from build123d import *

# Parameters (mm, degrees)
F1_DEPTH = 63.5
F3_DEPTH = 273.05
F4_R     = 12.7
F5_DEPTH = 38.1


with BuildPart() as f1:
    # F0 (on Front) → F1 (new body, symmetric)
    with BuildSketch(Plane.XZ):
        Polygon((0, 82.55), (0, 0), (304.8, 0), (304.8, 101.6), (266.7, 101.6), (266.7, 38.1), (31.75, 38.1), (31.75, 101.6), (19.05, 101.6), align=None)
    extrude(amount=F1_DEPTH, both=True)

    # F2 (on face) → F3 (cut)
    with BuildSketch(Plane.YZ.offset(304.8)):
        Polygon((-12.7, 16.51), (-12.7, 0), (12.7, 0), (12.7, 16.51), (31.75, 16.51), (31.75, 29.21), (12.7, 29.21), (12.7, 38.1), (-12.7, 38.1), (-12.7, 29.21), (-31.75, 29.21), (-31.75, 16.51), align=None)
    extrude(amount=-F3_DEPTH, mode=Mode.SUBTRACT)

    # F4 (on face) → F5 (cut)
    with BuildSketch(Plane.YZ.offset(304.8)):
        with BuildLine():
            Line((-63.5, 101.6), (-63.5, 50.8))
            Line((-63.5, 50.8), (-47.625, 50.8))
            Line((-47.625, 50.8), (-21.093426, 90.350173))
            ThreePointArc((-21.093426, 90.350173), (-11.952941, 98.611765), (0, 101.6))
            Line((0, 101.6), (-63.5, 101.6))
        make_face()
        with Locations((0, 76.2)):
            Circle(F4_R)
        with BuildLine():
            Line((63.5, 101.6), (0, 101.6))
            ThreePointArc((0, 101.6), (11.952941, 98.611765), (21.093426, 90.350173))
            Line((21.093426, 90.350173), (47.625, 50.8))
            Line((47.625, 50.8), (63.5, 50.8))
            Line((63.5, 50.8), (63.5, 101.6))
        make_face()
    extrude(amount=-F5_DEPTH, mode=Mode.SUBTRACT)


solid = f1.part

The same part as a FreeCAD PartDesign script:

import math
import FreeCAD as App
import Part
import Sketcher
from FreeCAD import Vector
Q = App.Units.Quantity

doc = App.newDocument("Part")
body = doc.addObject("PartDesign::Body", "Body")

sketch1 = doc.addObject("Sketcher::SketchObject", "Sketch")
body.addObject(sketch1)
sketch1.AttachmentSupport = (doc.XZ_Plane, [""])
sketch1.MapMode = "FlatFace"
sketch1.addGeometry([
    Part.LineSegment(Vector(0, 82.55, 0), Vector(0, 0, 0)),
    Part.LineSegment(Vector(0, 0, 0), Vector(304.8, 0, 0)),
    Part.LineSegment(Vector(304.8, 0, 0), Vector(304.8, 101.6, 0)),
    Part.LineSegment(Vector(304.8, 101.6, 0), Vector(266.7, 101.6, 0)),
    Part.LineSegment(Vector(266.7, 101.6, 0), Vector(266.7, 38.1, 0)),
    Part.LineSegment(Vector(266.7, 38.1, 0), Vector(31.75, 38.1, 0)),
    Part.LineSegment(Vector(31.75, 38.1, 0), Vector(31.75, 101.6, 0)),
    Part.LineSegment(Vector(31.75, 101.6, 0), Vector(19.05, 101.6, 0)),
    Part.LineSegment(Vector(19.05, 101.6, 0), Vector(0, 82.55, 0)),
], False)
sketch1.addConstraint([
    Sketcher.Constraint("Coincident", 0, 2, 1, 1),
    Sketcher.Constraint("Coincident", 1, 2, 2, 1),
    Sketcher.Constraint("Coincident", 2, 2, 3, 1),
    Sketcher.Constraint("Coincident", 3, 2, 4, 1),
    Sketcher.Constraint("Coincident", 4, 2, 5, 1),
    Sketcher.Constraint("Coincident", 5, 2, 6, 1),
    Sketcher.Constraint("Coincident", 6, 2, 7, 1),
    Sketcher.Constraint("Coincident", 7, 2, 8, 1),
    Sketcher.Constraint("Coincident", 8, 2, 0, 1),
    Sketcher.Constraint("Vertical", 0),
    Sketcher.Constraint("Horizontal", 1),
    Sketcher.Constraint("Vertical", 2),
    Sketcher.Constraint("Horizontal", 3),
    Sketcher.Constraint("Vertical", 4),
    Sketcher.Constraint("Horizontal", 5),
    Sketcher.Constraint("Vertical", 6),
    Sketcher.Constraint("Horizontal", 7),
    Sketcher.Constraint("Coincident", 0, 2, -1, 1),
    Sketcher.Constraint("Horizontal", 3, 2, 6, 2),
    Sketcher.Constraint("DistanceX", 1, 1, 1, 2, Q("12 in")),
    Sketcher.Constraint("DistanceY", 2, 1, 2, 2, Q("4 in")),
    Sketcher.Constraint("DistanceX", 3, 2, 3, 1, Q("1.5 in")),
    Sketcher.Constraint("DistanceX", 7, 2, 7, 1, Q("0.5 in")),
    Sketcher.Constraint("DistanceY", 4, 2, 4, 1, Q("2.5 in")),
    Sketcher.Constraint("Angle", 8, Q("-135 deg")),
    Sketcher.Constraint("DistanceX", 5, 2, 5, 1, Q("9.25 in")),
])
pad1 = doc.addObject("PartDesign::Pad", "Pad")
body.addObject(pad1)
pad1.Profile = sketch1
pad1.Length = Q("5 in")
pad1.Midplane = True

sketch2 = doc.addObject("Sketcher::SketchObject", "Sketch001")
body.addObject(sketch2)
sketch2.AttachmentSupport = (doc.YZ_Plane, [""])
sketch2.MapMode = "FlatFace"
sketch2.AttachmentOffset = App.Placement(Vector(0, 0, 12 * 25.4), App.Rotation())
sketch2.addGeometry([
    Part.LineSegment(Vector(-12.7, 16.51, 0), Vector(-12.7, 0, 0)),
    Part.LineSegment(Vector(-12.7, 0, 0), Vector(12.7, 0, 0)),
    Part.LineSegment(Vector(12.7, 0, 0), Vector(12.7, 16.51, 0)),
    Part.LineSegment(Vector(12.7, 16.51, 0), Vector(31.75, 16.51, 0)),
    Part.LineSegment(Vector(31.75, 16.51, 0), Vector(31.75, 29.21, 0)),
    Part.LineSegment(Vector(31.75, 29.21, 0), Vector(12.7, 29.21, 0)),
    Part.LineSegment(Vector(12.7, 29.21, 0), Vector(12.7, 38.1, 0)),
    Part.LineSegment(Vector(12.7, 38.1, 0), Vector(-12.7, 38.1, 0)),
    Part.LineSegment(Vector(-12.7, 38.1, 0), Vector(-12.7, 29.21, 0)),
    Part.LineSegment(Vector(-12.7, 29.21, 0), Vector(-31.75, 29.21, 0)),
    Part.LineSegment(Vector(-31.75, 29.21, 0), Vector(-31.75, 16.51, 0)),
    Part.LineSegment(Vector(-31.75, 16.51, 0), Vector(-12.7, 16.51, 0)),
], False)
sketch2.addConstraint([
    Sketcher.Constraint("Coincident", 0, 2, 1, 1),
    Sketcher.Constraint("Coincident", 1, 2, 2, 1),
    Sketcher.Constraint("Coincident", 2, 2, 3, 1),
    Sketcher.Constraint("Coincident", 3, 2, 4, 1),
    Sketcher.Constraint("Coincident", 4, 2, 5, 1),
    Sketcher.Constraint("Coincident", 5, 2, 6, 1),
    Sketcher.Constraint("Coincident", 6, 2, 7, 1),
    Sketcher.Constraint("Coincident", 7, 2, 8, 1),
    Sketcher.Constraint("Coincident", 8, 2, 9, 1),
    Sketcher.Constraint("Coincident", 9, 2, 10, 1),
    Sketcher.Constraint("Coincident", 10, 2, 11, 1),
    Sketcher.Constraint("Coincident", 11, 2, 0, 1),
    Sketcher.Constraint("Vertical", 0),
    Sketcher.Constraint("Horizontal", 1),
    Sketcher.Constraint("Vertical", 2),
    Sketcher.Constraint("Horizontal", 3),
    Sketcher.Constraint("Vertical", 4),
    Sketcher.Constraint("Horizontal", 5),
    Sketcher.Constraint("Vertical", 6),
    Sketcher.Constraint("Horizontal", 7),
    Sketcher.Constraint("Vertical", 8),
    Sketcher.Constraint("Horizontal", 9),
    Sketcher.Constraint("Vertical", 10),
    Sketcher.Constraint("Horizontal", 11),
    Sketcher.Constraint("Symmetric", 0, 2, 1, 2, -1, 1),
    Sketcher.Constraint("Symmetric", 5, 2, 8, 2, -2),
    Sketcher.Constraint("Symmetric", 3, 2, 10, 2, -2),
    Sketcher.Constraint("Vertical", 2, 2, 5, 2),
    Sketcher.Constraint("DistanceX", 1, 1, 1, 2, Q("1 in")),
    Sketcher.Constraint("DistanceY", 4, 1, 4, 2, Q("0.5 in")),
    Sketcher.Constraint("DistanceX", 3, 1, 3, 2, Q("0.75 in")),
    Sketcher.Constraint("DistanceY", 0, 2, 0, 1, Q("0.65 in")),
    Sketcher.Constraint("DistanceY", 6, 1, 6, 2, Q("0.35 in")),
])
pocket1 = doc.addObject("PartDesign::Pocket", "Pocket")
body.addObject(pocket1)
pocket1.Profile = sketch2
pocket1.Length = Q("10.75 in")

sketch3 = doc.addObject("Sketcher::SketchObject", "Sketch002")
body.addObject(sketch3)
sketch3.AttachmentSupport = (doc.YZ_Plane, [""])
sketch3.MapMode = "FlatFace"
sketch3.AttachmentOffset = App.Placement(Vector(0, 0, 12 * 25.4), App.Rotation())
sketch3.addGeometry([
    Part.LineSegment(Vector(-63.5, 101.6, 0), Vector(-63.5, 50.8, 0)),
    Part.LineSegment(Vector(-63.5, 50.8, 0), Vector(-47.625, 50.8, 0)),
    Part.LineSegment(Vector(-47.625, 50.8, 0), Vector(-21.093426, 90.350173, 0)),
    Part.ArcOfCircle(Part.Circle(Vector(0, 76.2, 0), Vector(0, 0, 1), 25.4), math.radians(89.999999), math.radians(146.144974)),
    Part.LineSegment(Vector(0, 101.6, 0), Vector(-63.5, 101.6, 0)),
    Part.Circle(Vector(0, 76.2, 0), Vector(0, 0, 1), 12.7),
    Part.LineSegment(Vector(63.5, 101.6, 0), Vector(0, 101.6, 0)),
    Part.ArcOfCircle(Part.Circle(Vector(0, 76.2, 0), Vector(0, 0, 1), 25.4), math.radians(33.855026), math.radians(90.000001)),
    Part.LineSegment(Vector(21.093426, 90.350173, 0), Vector(47.625, 50.8, 0)),
    Part.LineSegment(Vector(47.625, 50.8, 0), Vector(63.5, 50.8, 0)),
    Part.LineSegment(Vector(63.5, 50.8, 0), Vector(63.5, 101.6, 0)),
], False)
sketch3.addConstraint([
    Sketcher.Constraint("Coincident", 0, 2, 1, 1),
    Sketcher.Constraint("Coincident", 1, 2, 2, 1),
    Sketcher.Constraint("Tangent", 2, 2, 3, 2),
    Sketcher.Constraint("Tangent", 3, 1, 4, 1),
    Sketcher.Constraint("Coincident", 4, 2, 0, 1),
    Sketcher.Constraint("Tangent", 6, 2, 7, 2),
    Sketcher.Constraint("Tangent", 7, 1, 8, 1),
    Sketcher.Constraint("Coincident", 8, 2, 9, 1),
    Sketcher.Constraint("Coincident", 9, 2, 10, 1),
    Sketcher.Constraint("Coincident", 10, 2, 6, 1),
    Sketcher.Constraint("Vertical", 0),
    Sketcher.Constraint("Horizontal", 1),
    Sketcher.Constraint("Horizontal", 4),
    Sketcher.Constraint("Horizontal", 6),
    Sketcher.Constraint("Horizontal", 9),
    Sketcher.Constraint("Vertical", 10),
    Sketcher.Constraint("Coincident", 5, 3, 3, 3),
    Sketcher.Constraint("Coincident", 7, 3, 3, 3),
    Sketcher.Constraint("Equal", 3, 7),
    Sketcher.Constraint("Symmetric", 2, 2, 7, 1, -2),
    Sketcher.Constraint("Symmetric", 0, 2, 9, 2, -2),
    Sketcher.Constraint("Diameter", 5, Q("1 in")),
    Sketcher.Constraint("Radius", 3, Q("1 in")),
    Sketcher.Constraint("DistanceY", 0, 2, 0, 1, Q("2 in")),
    Sketcher.Constraint("DistanceX", 4, 2, 4, 1, Q("2.5 in")),
    Sketcher.Constraint("DistanceY", -1, 1, 3, 3, Q("3 in")),
    Sketcher.Constraint("DistanceX", 1, 1, 1, 2, Q("0.625 in")),
])
pocket2 = doc.addObject("PartDesign::Pocket", "Pocket001")
body.addObject(pocket2)
pocket2.Profile = sketch3
pocket2.Length = Q("1.5 in")

doc.recompute()
